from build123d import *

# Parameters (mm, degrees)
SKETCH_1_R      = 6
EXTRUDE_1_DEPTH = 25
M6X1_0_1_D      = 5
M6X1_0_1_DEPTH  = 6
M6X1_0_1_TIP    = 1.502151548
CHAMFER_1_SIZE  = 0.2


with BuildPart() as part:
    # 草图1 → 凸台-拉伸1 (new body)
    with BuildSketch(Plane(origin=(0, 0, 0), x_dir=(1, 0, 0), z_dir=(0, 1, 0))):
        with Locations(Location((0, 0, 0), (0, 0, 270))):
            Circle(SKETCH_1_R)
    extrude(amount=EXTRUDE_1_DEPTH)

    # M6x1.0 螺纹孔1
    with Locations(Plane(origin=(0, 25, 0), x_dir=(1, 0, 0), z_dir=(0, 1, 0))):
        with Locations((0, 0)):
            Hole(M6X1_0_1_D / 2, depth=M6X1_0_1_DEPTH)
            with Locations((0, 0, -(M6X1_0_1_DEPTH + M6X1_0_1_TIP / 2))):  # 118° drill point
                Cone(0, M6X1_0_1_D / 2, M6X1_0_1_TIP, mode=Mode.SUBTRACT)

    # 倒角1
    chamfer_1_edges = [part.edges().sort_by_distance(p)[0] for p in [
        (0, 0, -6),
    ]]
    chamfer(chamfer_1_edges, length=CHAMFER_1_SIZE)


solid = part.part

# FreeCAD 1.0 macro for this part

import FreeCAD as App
import Part
import Sketcher
from FreeCAD import Vector


def edges_at(feature, points):
    """Names of the edges that pass closest to the given points."""
    edges = feature.Shape.Edges
    near = lambda p: min(range(len(edges)), key=lambda i: edges[i].distToShape(Part.Vertex(*p))[0])
    return sorted({f"Edge{near(p) + 1}" for p in points})

doc = App.newDocument("Part")
params = doc.addObject("Spreadsheet::Sheet", "Params")
for row, (alias, value) in enumerate([
    ("sketch1_diameter", "12 mm"),
    ("pad1_length", "25 mm"),
    ("sketch2_diameter", "5 mm"),
    ("hole_diameter", "5 mm"),
    ("hole_depth", "6 mm"),
    ("chamfer_size", "0.2 mm"),
], start=1):
    params.set(f"A{row}", alias)
    params.set(f"B{row}", "=" + value)
    params.setAlias(f"B{row}", alias)

body = doc.addObject("PartDesign::Body", "Body")

# Sketch on XZ plane
sketch1 = body.newObject("Sketcher::SketchObject", "Sketch")
sketch1.AttachmentSupport = (doc.getObject("XZ_Plane"), [""])
sketch1.MapMode = "FlatFace"
sketch1.addGeometry(Part.Circle(Vector(0, 0, 0), Vector(0, 0, 1), 6), False)
sketch1.addConstraint(Sketcher.Constraint("Coincident", 0, 3, -1, 1))
sketch1.addConstraint(Sketcher.Constraint("Diameter", 0, 12.0))
sketch1.setExpression("Constraints[1]", "Params.sketch1_diameter")
pad1 = body.newObject("PartDesign::Pad", "Pad")
pad1.Profile = sketch1
pad1.setExpression("Length", "Params.pad1_length")
pad1.Reversed = True

# Sketch on XZ plane
sketch2 = body.newObject("Sketcher::SketchObject", "Sketch001")
sketch2.AttachmentSupport = (doc.getObject("XZ_Plane"), [""])
sketch2.MapMode = "FlatFace"
sketch2.AttachmentOffset = App.Placement(Vector(0, 0, -25), App.Rotation())
sketch2.addGeometry(Part.Circle(Vector(0, 0, 0), Vector(0, 0, 1), 2.5), False)
sketch2.addConstraint(Sketcher.Constraint("Coincident", 0, 3, -1, 1))
sketch2.addConstraint(Sketcher.Constraint("Diameter", 0, 5.0))
sketch2.setExpression("Constraints[1]", "Params.sketch2_diameter")
doc.recompute()
hole = body.newObject("PartDesign::Hole", "Hole")
hole.Profile = sketch2
hole.ThreadType = "None"
hole.setExpression("Diameter", "Params.hole_diameter")
hole.DepthType = "Dimension"
hole.setExpression("Depth", "Params.hole_depth")
hole.DrillPoint = "Angled"
hole.DrillPointAngle = 118
hole.Reversed = True
doc.recompute()

chamfer = body.newObject("PartDesign::Chamfer", "Chamfer")
chamfer.Base = (hole, edges_at(hole, [(0, 0, -6)]))
chamfer.setExpression("Size", "Params.chamfer_size")

doc.recompute()
